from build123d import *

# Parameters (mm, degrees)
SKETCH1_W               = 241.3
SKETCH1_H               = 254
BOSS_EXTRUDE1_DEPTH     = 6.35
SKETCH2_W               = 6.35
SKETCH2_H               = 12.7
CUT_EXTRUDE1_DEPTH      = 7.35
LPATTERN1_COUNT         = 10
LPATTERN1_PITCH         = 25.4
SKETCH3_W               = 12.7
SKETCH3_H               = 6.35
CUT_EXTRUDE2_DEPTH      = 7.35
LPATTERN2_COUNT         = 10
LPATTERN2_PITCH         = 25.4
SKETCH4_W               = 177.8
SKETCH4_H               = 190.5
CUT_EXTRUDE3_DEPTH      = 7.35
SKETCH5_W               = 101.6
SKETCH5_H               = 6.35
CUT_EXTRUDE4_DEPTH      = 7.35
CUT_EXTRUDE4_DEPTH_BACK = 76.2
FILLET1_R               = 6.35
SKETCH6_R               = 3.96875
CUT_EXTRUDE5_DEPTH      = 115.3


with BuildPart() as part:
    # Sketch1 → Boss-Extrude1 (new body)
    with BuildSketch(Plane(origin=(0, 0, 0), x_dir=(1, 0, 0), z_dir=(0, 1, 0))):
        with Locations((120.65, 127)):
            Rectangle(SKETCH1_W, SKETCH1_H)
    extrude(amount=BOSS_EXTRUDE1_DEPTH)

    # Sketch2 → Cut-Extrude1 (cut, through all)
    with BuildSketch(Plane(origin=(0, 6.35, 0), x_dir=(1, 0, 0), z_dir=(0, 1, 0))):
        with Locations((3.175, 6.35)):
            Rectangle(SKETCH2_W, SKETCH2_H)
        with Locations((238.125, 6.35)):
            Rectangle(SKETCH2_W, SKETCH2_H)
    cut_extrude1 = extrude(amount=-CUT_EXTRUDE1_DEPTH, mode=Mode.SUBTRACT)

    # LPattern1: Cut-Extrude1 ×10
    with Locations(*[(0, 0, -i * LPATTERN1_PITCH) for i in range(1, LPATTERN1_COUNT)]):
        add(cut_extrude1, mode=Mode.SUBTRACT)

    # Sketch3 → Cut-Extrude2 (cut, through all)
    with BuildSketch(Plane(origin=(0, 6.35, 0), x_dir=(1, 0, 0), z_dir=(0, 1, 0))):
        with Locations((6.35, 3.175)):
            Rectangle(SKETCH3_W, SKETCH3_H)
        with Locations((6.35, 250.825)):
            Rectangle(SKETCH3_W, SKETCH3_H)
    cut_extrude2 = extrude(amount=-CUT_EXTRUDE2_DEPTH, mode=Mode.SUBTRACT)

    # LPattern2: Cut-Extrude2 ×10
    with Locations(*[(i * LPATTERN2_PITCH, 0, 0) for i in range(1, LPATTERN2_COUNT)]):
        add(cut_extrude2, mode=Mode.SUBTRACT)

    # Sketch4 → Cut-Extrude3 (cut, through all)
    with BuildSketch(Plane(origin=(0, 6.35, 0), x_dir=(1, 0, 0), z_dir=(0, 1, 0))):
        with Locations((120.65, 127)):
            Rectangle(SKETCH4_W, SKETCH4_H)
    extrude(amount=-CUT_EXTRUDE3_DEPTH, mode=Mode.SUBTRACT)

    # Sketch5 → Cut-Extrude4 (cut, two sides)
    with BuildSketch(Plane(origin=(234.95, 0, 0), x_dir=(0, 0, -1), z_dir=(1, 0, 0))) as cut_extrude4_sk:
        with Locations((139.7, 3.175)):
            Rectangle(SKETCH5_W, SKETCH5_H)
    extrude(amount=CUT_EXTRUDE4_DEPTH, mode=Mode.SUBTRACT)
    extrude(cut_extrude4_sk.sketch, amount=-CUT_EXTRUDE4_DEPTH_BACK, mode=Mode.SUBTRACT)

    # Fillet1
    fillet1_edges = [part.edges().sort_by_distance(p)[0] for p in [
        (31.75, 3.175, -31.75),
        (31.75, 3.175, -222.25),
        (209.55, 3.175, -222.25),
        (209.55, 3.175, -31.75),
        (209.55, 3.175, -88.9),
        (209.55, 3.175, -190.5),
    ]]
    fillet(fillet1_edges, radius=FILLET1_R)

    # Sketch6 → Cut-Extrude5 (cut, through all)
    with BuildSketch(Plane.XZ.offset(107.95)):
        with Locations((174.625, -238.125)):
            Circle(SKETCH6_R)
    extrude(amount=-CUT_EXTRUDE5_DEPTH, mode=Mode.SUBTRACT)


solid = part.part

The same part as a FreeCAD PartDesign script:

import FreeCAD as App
import Part
import Sketcher
from FreeCAD import Vector
Q = App.Units.Quantity


def edges_at(feature, points):
    """Names of the edges that pass closest to the given points."""
    edges = feature.Shape.Edges
    near = lambda p: min(range(len(edges)), key=lambda i: edges[i].distToShape(Part.Vertex(*p))[0])
    return sorted({f"Edge{near(p) + 1}" for p in points})

doc = App.newDocument("Part")
body = doc.addObject("PartDesign::Body", "Body")

sketch1 = doc.addObject("Sketcher::SketchObject", "Sketch")
body.addObject(sketch1)
sketch1.AttachmentSupport = (doc.XZ_Plane, [""])
sketch1.MapMode = "FlatFace"
sketch1.addGeometry([
    Part.LineSegment(Vector(0, -254, 0), Vector(0, 0, 0)),
    Part.LineSegment(Vector(0, 0, 0), Vector(241, 0, 0)),
    Part.LineSegment(Vector(241, 0, 0), Vector(241, -254, 0)),
    Part.LineSegment(Vector(241, -254, 0), Vector(0, -254, 0)),
], False)
sketch1.addConstraint([
    Sketcher.Constraint("Coincident", 0, 2, 1, 1),
    Sketcher.Constraint("Coincident", 1, 2, 2, 1),
    Sketcher.Constraint("Coincident", 2, 2, 3, 1),
    Sketcher.Constraint("Coincident", 3, 2, 0, 1),
    Sketcher.Constraint("Vertical", 0),
    Sketcher.Constraint("Horizontal", 1),
    Sketcher.Constraint("Vertical", 2),
    Sketcher.Constraint("Horizontal", 3),
    Sketcher.Constraint("Coincident", 0, 2, -1, 1),
    Sketcher.Constraint("DistanceY", 0, 1, 0, 2, Q("10 in")),
    Sketcher.Constraint("DistanceX", 1, 1, 1, 2, Q("9.5 in")),
])
pad1 = doc.addObject("PartDesign::Pad", "Pad")
body.addObject(pad1)
pad1.Profile = sketch1
pad1.Length = Q("0.25 in")
pad1.Reversed = True

sketch2 = doc.addObject("Sketcher::SketchObject", "Sketch001")
body.addObject(sketch2)
sketch2.AttachmentSupport = (doc.XZ_Plane, [""])
sketch2.MapMode = "FlatFace"
sketch2.AttachmentOffset = App.Placement(Vector(0, 0, -0.25 * 25.4), App.Rotation())
sketch2.addGeometry([
    Part.LineSegment(Vector(0, -13, 0), Vector(0, 0, 0)),
    Part.LineSegment(Vector(0, 0, 0), Vector(6, 0, 0)),
    Part.LineSegment(Vector(6, 0, 0), Vector(6, -13, 0)),
    Part.LineSegment(Vector(6, -13, 0), Vector(0, -13, 0)),
    Part.LineSegment(Vector(235, -13, 0), Vector(235, 0, 0)),
    Part.LineSegment(Vector(235, 0, 0), Vector(241, 0, 0)),
    Part.LineSegment(Vector(241, 0, 0), Vector(241, -13, 0)),
    Part.LineSegment(Vector(241, -13, 0), Vector(235, -13, 0)),
], False)
sketch2.addConstraint([
    Sketcher.Constraint("Coincident", 0, 2, 1, 1),
    Sketcher.Constraint("Coincident", 1, 2, 2, 1),
    Sketcher.Constraint("Coincident", 2, 2, 3, 1),
    Sketcher.Constraint("Coincident", 3, 2, 0, 1),
    Sketcher.Constraint("Coincident", 4, 2, 5, 1),
    Sketcher.Constraint("Coincident", 5, 2, 6, 1),
    Sketcher.Constraint("Coincident", 6, 2, 7, 1),
    Sketcher.Constraint("Coincident", 7, 2, 4, 1),
    Sketcher.Constraint("Vertical", 0),
    Sketcher.Constraint("Horizontal", 1),
    Sketcher.Constraint("Vertical", 2),
    Sketcher.Constraint("Horizontal", 3),
    Sketcher.Constraint("Vertical", 4),
    Sketcher.Constraint("Horizontal", 5),
    Sketcher.Constraint("Vertical", 6),
    Sketcher.Constraint("Horizontal", 7),
    Sketcher.Constraint("Coincident", 0, 2, -1, 1),
    Sketcher.Constraint("PointOnObject", 4, 2, -1),
    Sketcher.Constraint("Horizontal", 3, 2, 6, 2),
    Sketcher.Constraint("Equal", 3, 5),
    Sketcher.Constraint("DistanceY", 0, 1, 0, 2, Q("0.5 in")),
    Sketcher.Constraint("DistanceX", 1, 2, 4, 2, Q("9 in")),
    Sketcher.Constraint("DistanceX", 1, 1, 1, 2, Q("0.25 in")),
])
pocket1 = doc.addObject("PartDesign::Pocket", "Pocket")
body.addObject(pocket1)
pocket1.Profile = sketch2
pocket1.Type = "ThroughAll"
pocket1.Reversed = True
doc.recompute()

linearpattern = doc.addObject("PartDesign::LinearPattern", "LinearPattern")
body.addObject(linearpattern)
linearpattern.Originals = [pocket1]
linearpattern.Direction = (doc.Z_Axis, [""])
linearpattern.Mode = "offset"
linearpattern.Offset = Q("1 in")
linearpattern.Occurrences = 10
linearpattern.Reversed = True
body.Tip = linearpattern

sketch3 = doc.addObject("Sketcher::SketchObject", "Sketch002")
body.addObject(sketch3)
sketch3.AttachmentSupport = (doc.XZ_Plane, [""])
sketch3.MapMode = "FlatFace"
sketch3.AttachmentOffset = App.Placement(Vector(0, 0, -0.25 * 25.4), App.Rotation())
sketch3.addGeometry([
    Part.LineSegment(Vector(0, -6, 0), Vector(0, 0, 0)),
    Part.LineSegment(Vector(0, 0, 0), Vector(13, 0, 0)),
    Part.LineSegment(Vector(13, 0, 0), Vector(13, -6, 0)),
    Part.LineSegment(Vector(13, -6, 0), Vector(0, -6, 0)),
    Part.LineSegment(Vector(0, -254, 0), Vector(0, -248, 0)),
    Part.LineSegment(Vector(0, -248, 0), Vector(13, -248, 0)),
    Part.LineSegment(Vector(13, -248, 0), Vector(13, -254, 0)),
    Part.LineSegment(Vector(13, -254, 0), Vector(0, -254, 0)),
], False)
sketch3.addConstraint([
    Sketcher.Constraint("Coincident", 0, 2, 1, 1),
    Sketcher.Constraint("Coincident", 1, 2, 2, 1),
    Sketcher.Constraint("Coincident", 2, 2, 3, 1),
    Sketcher.Constraint("Coincident", 3, 2, 0, 1),
    Sketcher.Constraint("Coincident", 4, 2, 5, 1),
    Sketcher.Constraint("Coincident", 5, 2, 6, 1),
    Sketcher.Constraint("Coincident", 6, 2, 7, 1),
    Sketcher.Constraint("Coincident", 7, 2, 4, 1),
    Sketcher.Constraint("Vertical", 0),
    Sketcher.Constraint("Horizontal", 1),
    Sketcher.Constraint("Vertical", 2),
    Sketcher.Constraint("Horizontal", 3),
    Sketcher.Constraint("Vertical", 4),
    Sketcher.Constraint("Horizontal", 5),
    Sketcher.Constraint("Vertical", 6),
    Sketcher.Constraint("Horizontal", 7),
    Sketcher.Constraint("Coincident", 0, 2, -1, 1),
    Sketcher.Constraint("PointOnObject", 4, 2, -2),
    Sketcher.Constraint("Vertical", 2, 2, 5, 2),
    Sketcher.Constraint("Equal", 2, 4),
    Sketcher.Constraint("DistanceX", 1, 1, 1, 2, Q("0.5 in")),
    Sketcher.Constraint("DistanceY", 6, 2, -1, 1, Q("10 in")),
    Sketcher.Constraint("DistanceY", 0, 1, 0, 2, Q("0.25 in")),
])
pocket2 = doc.addObject("PartDesign::Pocket", "Pocket001")
body.addObject(pocket2)
pocket2.Profile = sketch3
pocket2.Type = "ThroughAll"
pocket2.Reversed = True
doc.recompute()

linearpattern2 = doc.addObject("PartDesign::LinearPattern", "LinearPattern001")
body.addObject(linearpattern2)
linearpattern2.Originals = [pocket2]
linearpattern2.Direction = (doc.X_Axis, [""])
linearpattern2.Mode = "offset"
linearpattern2.Offset = Q("1 in")
linearpattern2.Occurrences = 10
body.Tip = linearpattern2

sketch4 = doc.addObject("Sketcher::SketchObject", "Sketch003")
body.addObject(sketch4)
sketch4.AttachmentSupport = (doc.XZ_Plane, [""])
sketch4.MapMode = "FlatFace"
sketch4.AttachmentOffset = App.Placement(Vector(0, 0, -0.25 * 25.4), App.Rotation())
sketch4.addGeometry([
    Part.LineSegment(Vector(32, -222, 0), Vector(32, -32, 0)),
    Part.LineSegment(Vector(32, -32, 0), Vector(210, -32, 0)),
    Part.LineSegment(Vector(210, -32, 0), Vector(210, -222, 0)),
    Part.LineSegment(Vector(210, -222, 0), Vector(32, -222, 0)),
], False)
sketch4.addConstraint([
    Sketcher.Constraint("Coincident", 0, 2, 1, 1),
    Sketcher.Constraint("Coincident", 1, 2, 2, 1),
    Sketcher.Constraint("Coincident", 2, 2, 3, 1),
    Sketcher.Constraint("Coincident", 3, 2, 0, 1),
    Sketcher.Constraint("Vertical", 0),
    Sketcher.Constraint("Horizontal", 1),
    Sketcher.Constraint("Vertical", 2),
    Sketcher.Constraint("Horizontal", 3),
    Sketcher.Constraint("DistanceX", 1, 1, 1, 2, Q("7 in")),
    Sketcher.Constraint("DistanceY", 0, 1, 0, 2, Q("7.5 in")),
    Sketcher.Constraint("DistanceX", -1, 1, 0, 2, Q("1.25 in")),
    Sketcher.Constraint("DistanceY", 0, 2, -1, 1, Q("1.25 in")),
])
pocket3 = doc.addObject("PartDesign::Pocket", "Pocket002")
body.addObject(pocket3)
pocket3.Profile = sketch4
pocket3.Type = "ThroughAll"
pocket3.Reversed = True

sketch5 = doc.addObject("Sketcher::SketchObject", "Sketch004")
body.addObject(sketch5)
sketch5.AttachmentSupport = (doc.YZ_Plane, [""])
sketch5.MapMode = "FlatFace"
sketch5.AttachmentOffset = App.Placement(Vector(0, 0, 9.25 * 25.4), App.Rotation())
sketch5.addGeometry([
    Part.LineSegment(Vector(6, -89, 0), Vector(0, -89, 0)),
    Part.LineSegment(Vector(0, -89, 0), Vector(0, -190, 0)),
    Part.LineSegment(Vector(0, -190, 0), Vector(6, -190, 0)),
    Part.LineSegment(Vector(6, -190, 0), Vector(6, -89, 0)),
], False)
sketch5.addConstraint([
    Sketcher.Constraint("Coincident", 0, 2, 1, 1),
    Sketcher.Constraint("Coincident", 1, 2, 2, 1),
    Sketcher.Constraint("Coincident", 2, 2, 3, 1),
    Sketcher.Constraint("Coincident", 3, 2, 0, 1),
    Sketcher.Constraint("Horizontal", 0),
    Sketcher.Constraint("Vertical", 1),
    Sketcher.Constraint("Horizontal", 2),
    Sketcher.Constraint("Vertical", 3),
    Sketcher.Constraint("PointOnObject", 0, 2, -2),
    Sketcher.Constraint("DistanceY", 1, 2, 1, 1, Q("4 in")),
    Sketcher.Constraint("DistanceX", 0, 2, 0, 1, Q("0.25 in")),
    Sketcher.Constraint("DistanceY", 0, 2, -1, 1, Q("3.5 in")),
])
pocket4 = doc.addObject("PartDesign::Pocket", "Pocket003")
body.addObject(pocket4)
pocket4.Profile = sketch5
pocket4.Type = "TwoLengths"
pocket4.Length = 7.35
pocket4.Length2 = Q("3 in")
pocket4.Reversed = True
doc.recompute()

fillet = doc.addObject("PartDesign::Fillet", "Fillet")
body.addObject(fillet)
fillet.Base = (pocket4, edges_at(pocket4, [
    (31.75, 3.175, -31.75),
    (31.75, 3.175, -222.25),
    (209.55, 3.175, -222.25),
    (209.55, 3.175, -31.75),
    (209.55, 3.175, -88.9),
    (209.55, 3.175, -190.5),
]))
fillet.Radius = Q("0.25 in")

sketch6 = doc.addObject("Sketcher::SketchObject", "Sketch005")
body.addObject(sketch6)
sketch6.AttachmentSupport = (doc.XZ_Plane, [""])
sketch6.MapMode = "FlatFace"
sketch6.AttachmentOffset = App.Placement(Vector(0, 0, 4.25 * 25.4), App.Rotation())
sketch6.addGeometry(Part.Circle(Vector(174.6, -238.1, 0), Vector(0, 0, 1), 4), False)
sketch6.addConstraint([
    Sketcher.Constraint("Diameter", 0, Q("0.3125 in")),
    Sketcher.Constraint("DistanceX", -1, 1, 0, 3, Q("6.875 in")),
    Sketcher.Constraint("DistanceY", 0, 3, -1, 1, Q("9.375 in")),
])
pocket5 = doc.addObject("PartDesign::Pocket", "Pocket004")
body.addObject(pocket5)
pocket5.Profile = sketch6
pocket5.Type = "ThroughAll"

doc.recompute()
